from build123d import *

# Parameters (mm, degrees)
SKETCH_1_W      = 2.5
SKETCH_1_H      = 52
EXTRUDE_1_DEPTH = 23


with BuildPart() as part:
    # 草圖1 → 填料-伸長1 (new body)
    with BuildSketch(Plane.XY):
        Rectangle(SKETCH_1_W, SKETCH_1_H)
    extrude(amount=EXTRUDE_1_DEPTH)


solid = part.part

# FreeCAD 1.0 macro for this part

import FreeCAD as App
import Part
import Sketcher


def add_polygon(sketch, points):
    """Adds a closed chain of lines whose ends are joined by coincident constraints."""
    first, n = sketch.GeometryCount, len(points)
    for a, b in zip(points, points[1:] + points[:1]):
        sketch.addGeometry(Part.LineSegment(App.Vector(*a, 0), App.Vector(*b, 0)), False)
    for i in range(n):
        sketch.addConstraint(Sketcher.Constraint("Coincident", first + i, 2, first + (i + 1) % n, 1))

doc = App.newDocument("Part")
body = doc.addObject("PartDesign::Body", "Body")

# Sketch on XY plane
sketch1 = body.newObject("Sketcher::SketchObject", "Sketch")
sketch1.AttachmentSupport = (doc.getObject("XY_Plane"), [""])
sketch1.MapMode = "FlatFace"
add_polygon(sketch1, [(-1.2, 26), (-1.2, -26), (1.2, -26), (1.2, 26)])  # lines 0-3
sketch1.addConstraint(Sketcher.Constraint("Vertical", 0))
sketch1.addConstraint(Sketcher.Constraint("Horizontal", 1))
sketch1.addConstraint(Sketcher.Constraint("Vertical", 2))
sketch1.addConstraint(Sketcher.Constraint("Horizontal", 3))
sketch1.addConstraint(Sketcher.Constraint("Symmetric", 0, 2, 2, 2, -1, 1))
sketch1.addConstraint(Sketcher.Constraint("DistanceY", 0, 2, 0, 1, 52.0))
sketch1.addConstraint(Sketcher.Constraint("DistanceX", 1, 1, 1, 2, 2.5))
pad1 = body.newObject("PartDesign::Pad", "Pad")
pad1.Profile = sketch1
pad1.Length = 23

doc.recompute()
